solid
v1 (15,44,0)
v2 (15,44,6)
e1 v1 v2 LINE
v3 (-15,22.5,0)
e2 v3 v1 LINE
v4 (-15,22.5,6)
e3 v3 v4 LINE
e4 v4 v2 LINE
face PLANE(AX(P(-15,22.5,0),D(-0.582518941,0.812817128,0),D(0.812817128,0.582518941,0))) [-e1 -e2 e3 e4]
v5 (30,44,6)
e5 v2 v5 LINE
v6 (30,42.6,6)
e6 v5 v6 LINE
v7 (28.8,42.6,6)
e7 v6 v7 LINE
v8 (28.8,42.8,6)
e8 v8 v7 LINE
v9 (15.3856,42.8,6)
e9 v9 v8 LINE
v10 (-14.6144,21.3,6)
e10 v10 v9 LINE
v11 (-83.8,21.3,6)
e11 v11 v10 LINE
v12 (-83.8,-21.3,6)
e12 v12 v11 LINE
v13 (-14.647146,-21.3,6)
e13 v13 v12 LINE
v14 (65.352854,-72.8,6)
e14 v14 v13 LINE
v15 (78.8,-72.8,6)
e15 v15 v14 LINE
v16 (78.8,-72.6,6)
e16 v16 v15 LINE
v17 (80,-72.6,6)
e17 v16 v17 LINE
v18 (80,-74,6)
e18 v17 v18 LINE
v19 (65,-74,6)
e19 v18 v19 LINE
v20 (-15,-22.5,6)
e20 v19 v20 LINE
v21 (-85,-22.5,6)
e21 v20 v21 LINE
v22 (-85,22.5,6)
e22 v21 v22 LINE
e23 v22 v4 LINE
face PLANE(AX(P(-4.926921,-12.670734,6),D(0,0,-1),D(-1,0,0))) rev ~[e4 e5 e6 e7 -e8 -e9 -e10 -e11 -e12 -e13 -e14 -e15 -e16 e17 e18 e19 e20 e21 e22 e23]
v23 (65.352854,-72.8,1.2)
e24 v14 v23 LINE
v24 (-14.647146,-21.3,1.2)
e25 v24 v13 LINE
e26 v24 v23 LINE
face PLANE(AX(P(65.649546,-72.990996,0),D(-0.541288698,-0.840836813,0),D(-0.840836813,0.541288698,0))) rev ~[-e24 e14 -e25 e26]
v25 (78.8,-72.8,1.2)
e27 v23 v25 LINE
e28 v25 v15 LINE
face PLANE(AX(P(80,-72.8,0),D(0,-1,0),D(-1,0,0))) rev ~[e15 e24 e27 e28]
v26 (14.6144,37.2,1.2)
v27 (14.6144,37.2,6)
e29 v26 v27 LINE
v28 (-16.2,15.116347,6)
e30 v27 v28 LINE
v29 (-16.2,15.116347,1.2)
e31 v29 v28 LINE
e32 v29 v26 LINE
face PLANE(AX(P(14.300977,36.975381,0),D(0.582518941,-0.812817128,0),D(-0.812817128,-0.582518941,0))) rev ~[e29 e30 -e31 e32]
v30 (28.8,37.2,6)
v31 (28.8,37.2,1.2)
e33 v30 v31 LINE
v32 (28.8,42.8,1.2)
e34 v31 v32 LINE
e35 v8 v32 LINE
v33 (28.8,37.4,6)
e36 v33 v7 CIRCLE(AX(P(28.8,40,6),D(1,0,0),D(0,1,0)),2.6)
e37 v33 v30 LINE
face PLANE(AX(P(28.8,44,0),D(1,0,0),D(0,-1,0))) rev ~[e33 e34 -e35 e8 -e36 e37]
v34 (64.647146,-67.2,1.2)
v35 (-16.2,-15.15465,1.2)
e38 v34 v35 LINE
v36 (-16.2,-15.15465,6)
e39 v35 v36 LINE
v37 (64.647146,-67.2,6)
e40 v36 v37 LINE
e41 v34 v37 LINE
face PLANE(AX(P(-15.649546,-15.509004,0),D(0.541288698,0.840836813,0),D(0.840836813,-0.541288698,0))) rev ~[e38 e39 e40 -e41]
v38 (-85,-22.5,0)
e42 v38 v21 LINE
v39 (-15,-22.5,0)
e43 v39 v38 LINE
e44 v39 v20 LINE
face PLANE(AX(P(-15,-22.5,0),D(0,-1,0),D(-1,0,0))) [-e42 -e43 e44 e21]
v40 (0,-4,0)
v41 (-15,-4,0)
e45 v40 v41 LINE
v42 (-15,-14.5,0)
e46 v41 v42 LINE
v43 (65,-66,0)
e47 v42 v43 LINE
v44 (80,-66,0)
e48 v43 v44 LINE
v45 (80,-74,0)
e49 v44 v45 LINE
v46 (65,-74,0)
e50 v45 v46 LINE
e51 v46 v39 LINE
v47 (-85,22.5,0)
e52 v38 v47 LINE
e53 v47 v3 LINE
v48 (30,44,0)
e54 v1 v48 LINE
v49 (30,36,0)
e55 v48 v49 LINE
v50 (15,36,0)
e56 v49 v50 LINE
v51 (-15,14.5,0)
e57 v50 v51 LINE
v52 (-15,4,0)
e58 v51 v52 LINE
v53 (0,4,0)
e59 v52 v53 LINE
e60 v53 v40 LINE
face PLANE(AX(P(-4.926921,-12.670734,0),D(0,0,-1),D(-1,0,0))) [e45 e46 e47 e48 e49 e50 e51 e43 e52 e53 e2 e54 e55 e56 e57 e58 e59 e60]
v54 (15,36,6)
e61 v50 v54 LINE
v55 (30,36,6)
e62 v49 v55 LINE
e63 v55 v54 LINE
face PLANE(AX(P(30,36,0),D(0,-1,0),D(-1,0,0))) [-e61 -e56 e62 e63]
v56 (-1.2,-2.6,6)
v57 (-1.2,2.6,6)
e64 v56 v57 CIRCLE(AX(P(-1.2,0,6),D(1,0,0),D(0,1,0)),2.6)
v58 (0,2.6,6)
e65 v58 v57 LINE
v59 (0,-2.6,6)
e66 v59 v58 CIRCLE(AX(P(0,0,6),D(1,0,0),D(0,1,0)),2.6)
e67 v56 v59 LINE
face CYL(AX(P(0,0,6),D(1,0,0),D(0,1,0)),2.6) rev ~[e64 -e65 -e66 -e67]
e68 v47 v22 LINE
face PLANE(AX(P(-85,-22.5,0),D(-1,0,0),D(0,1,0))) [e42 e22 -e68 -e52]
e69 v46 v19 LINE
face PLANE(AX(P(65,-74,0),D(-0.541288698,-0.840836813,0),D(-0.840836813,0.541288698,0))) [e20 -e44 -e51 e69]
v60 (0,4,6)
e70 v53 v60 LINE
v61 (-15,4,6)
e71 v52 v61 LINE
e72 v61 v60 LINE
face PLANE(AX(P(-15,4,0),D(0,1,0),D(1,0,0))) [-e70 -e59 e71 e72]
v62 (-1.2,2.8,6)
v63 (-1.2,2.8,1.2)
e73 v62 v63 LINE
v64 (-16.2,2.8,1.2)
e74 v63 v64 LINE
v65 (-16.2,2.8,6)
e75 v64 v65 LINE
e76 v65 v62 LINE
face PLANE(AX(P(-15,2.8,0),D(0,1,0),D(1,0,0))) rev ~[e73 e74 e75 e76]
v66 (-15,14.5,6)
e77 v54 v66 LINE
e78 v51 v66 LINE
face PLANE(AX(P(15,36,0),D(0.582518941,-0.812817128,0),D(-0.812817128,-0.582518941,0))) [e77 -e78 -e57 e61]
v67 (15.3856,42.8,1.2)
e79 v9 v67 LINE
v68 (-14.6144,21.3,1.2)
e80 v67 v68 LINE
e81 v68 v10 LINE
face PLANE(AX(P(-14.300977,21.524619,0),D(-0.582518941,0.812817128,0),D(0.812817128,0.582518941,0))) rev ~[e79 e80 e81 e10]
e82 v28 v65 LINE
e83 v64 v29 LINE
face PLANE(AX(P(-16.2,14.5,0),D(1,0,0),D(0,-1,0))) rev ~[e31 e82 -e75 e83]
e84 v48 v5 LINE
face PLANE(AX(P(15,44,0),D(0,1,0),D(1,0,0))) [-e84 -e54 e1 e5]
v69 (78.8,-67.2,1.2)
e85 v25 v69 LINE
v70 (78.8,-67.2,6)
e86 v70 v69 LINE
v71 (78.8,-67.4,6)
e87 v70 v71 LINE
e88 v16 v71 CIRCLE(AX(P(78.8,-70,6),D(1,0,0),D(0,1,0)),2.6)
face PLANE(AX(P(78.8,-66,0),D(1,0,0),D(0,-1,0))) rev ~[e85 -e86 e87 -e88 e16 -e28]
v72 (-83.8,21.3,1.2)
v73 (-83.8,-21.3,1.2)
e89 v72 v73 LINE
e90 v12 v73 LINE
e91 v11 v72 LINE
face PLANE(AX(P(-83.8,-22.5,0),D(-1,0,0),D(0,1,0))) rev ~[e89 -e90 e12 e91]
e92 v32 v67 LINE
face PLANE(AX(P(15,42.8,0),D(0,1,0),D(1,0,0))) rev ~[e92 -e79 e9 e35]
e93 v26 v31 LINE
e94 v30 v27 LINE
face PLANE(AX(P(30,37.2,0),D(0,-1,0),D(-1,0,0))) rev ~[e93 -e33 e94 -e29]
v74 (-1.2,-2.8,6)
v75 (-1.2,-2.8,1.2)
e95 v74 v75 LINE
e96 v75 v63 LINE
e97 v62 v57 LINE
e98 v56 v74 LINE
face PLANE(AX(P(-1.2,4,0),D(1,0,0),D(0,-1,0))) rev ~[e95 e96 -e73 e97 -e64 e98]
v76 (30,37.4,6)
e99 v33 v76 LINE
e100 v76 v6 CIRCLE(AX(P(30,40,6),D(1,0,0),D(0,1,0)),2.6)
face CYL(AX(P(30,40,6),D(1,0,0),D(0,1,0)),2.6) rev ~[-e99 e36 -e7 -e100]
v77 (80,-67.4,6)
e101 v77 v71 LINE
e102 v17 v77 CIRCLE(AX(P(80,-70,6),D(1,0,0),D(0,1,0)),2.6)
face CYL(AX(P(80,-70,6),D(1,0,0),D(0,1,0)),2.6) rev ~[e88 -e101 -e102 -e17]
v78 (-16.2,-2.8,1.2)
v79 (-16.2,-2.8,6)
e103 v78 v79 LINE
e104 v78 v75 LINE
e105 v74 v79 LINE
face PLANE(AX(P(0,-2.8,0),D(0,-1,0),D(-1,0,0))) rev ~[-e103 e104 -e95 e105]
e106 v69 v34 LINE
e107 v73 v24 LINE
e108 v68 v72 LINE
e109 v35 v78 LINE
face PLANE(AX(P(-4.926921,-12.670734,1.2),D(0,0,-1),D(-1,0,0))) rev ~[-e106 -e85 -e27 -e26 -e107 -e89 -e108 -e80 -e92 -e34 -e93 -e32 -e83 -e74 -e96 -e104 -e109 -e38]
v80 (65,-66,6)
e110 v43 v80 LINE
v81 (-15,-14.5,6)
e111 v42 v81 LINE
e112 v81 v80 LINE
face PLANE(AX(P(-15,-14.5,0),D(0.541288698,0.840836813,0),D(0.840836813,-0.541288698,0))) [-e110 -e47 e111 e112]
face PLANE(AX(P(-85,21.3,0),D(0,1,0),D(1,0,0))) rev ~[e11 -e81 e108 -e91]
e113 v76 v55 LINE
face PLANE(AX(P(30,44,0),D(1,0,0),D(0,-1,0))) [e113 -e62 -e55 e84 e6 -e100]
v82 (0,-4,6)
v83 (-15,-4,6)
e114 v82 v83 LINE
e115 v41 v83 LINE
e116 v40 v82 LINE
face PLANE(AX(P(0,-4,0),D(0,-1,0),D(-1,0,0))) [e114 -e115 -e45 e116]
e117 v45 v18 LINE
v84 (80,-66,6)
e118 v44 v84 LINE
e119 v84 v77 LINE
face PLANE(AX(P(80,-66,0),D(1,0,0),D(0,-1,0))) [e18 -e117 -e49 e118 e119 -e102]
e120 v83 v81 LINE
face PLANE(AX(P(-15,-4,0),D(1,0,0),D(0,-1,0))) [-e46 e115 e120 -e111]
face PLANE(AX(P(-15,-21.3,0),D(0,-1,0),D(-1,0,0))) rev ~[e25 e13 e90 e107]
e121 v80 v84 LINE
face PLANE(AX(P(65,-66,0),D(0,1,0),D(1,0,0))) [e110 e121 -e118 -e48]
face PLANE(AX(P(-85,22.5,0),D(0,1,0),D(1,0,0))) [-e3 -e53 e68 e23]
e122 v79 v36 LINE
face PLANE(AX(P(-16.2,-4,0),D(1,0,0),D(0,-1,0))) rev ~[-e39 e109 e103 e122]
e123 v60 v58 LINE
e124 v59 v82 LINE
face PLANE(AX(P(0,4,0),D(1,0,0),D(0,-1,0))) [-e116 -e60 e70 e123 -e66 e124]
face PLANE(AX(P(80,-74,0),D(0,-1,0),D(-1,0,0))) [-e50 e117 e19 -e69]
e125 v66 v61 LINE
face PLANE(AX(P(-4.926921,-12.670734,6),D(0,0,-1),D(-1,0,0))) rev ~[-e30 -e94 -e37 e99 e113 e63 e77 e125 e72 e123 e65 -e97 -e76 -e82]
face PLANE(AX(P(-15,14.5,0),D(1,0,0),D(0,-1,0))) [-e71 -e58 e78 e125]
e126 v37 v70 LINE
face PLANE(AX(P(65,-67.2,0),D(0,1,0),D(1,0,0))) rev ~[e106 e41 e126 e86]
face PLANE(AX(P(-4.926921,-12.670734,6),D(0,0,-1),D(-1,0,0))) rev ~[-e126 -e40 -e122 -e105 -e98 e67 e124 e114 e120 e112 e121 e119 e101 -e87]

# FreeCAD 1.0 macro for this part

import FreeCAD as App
import Part
import Sketcher

V = App.Vector


def faces_at(feature, points):
    """Names of the faces that lie closest to the given points."""
    faces = feature.Shape.Faces
    near = lambda p: min(range(len(faces)), key=lambda i: faces[i].distToShape(Part.Vertex(*p))[0])
    return sorted({f"Face{near(p) + 1}" for p in points})

doc = App.newDocument("Part")
body = doc.addObject("PartDesign::Body", "Body")

# Sketch on XY plane
sketch1 = doc.addObject("Sketcher::SketchObject", "Sketch")
body.addObject(sketch1)
sketch1.AttachmentSupport = (doc.XY_Plane, [""])
sketch1.MapMode = "FlatFace"
sketch1.addGeometry([
    Part.LineSegment(V(65, -74, 0), V(80, -74, 0)),  # 0
    Part.LineSegment(V(80, -74, 0), V(80, -66, 0)),  # 1
    Part.LineSegment(V(80, -66, 0), V(65, -66, 0)),  # 2
    Part.LineSegment(V(65, -66, 0), V(-15, -14.5, 0)),  # 3
    Part.LineSegment(V(-15, -14.5, 0), V(-15, -4, 0)),  # 4
    Part.LineSegment(V(-15, -4, 0), V(0, -4, 0)),  # 5
    Part.LineSegment(V(0, -4, 0), V(0, 4, 0)),  # 6
    Part.LineSegment(V(0, 4, 0), V(-15, 4, 0)),  # 7
    Part.LineSegment(V(-15, 4, 0), V(-15, 14.5, 0)),  # 8
    Part.LineSegment(V(-15, 14.5, 0), V(15, 36, 0)),  # 9
    Part.LineSegment(V(15, 36, 0), V(30, 36, 0)),  # 10
    Part.LineSegment(V(30, 36, 0), V(30, 44, 0)),  # 11
    Part.LineSegment(V(30, 44, 0), V(15, 44, 0)),  # 12
    Part.LineSegment(V(15, 44, 0), V(-15, 22.5, 0)),  # 13
    Part.LineSegment(V(-15, 22.5, 0), V(-85, 22.5, 0)),  # 14
    Part.LineSegment(V(-85, 22.5, 0), V(-85, -22.5, 0)),  # 15
    Part.LineSegment(V(-85, -22.5, 0), V(-15, -22.5, 0)),  # 16
    Part.LineSegment(V(-15, -22.5, 0), V(65, -74, 0)),  # 17
], False)
sketch1.addConstraint([
    Sketcher.Constraint("Coincident", 0, 2, 1, 1),
    Sketcher.Constraint("Coincident", 1, 2, 2, 1),
    Sketcher.Constraint("Coincident", 2, 2, 3, 1),
    Sketcher.Constraint("Coincident", 3, 2, 4, 1),
    Sketcher.Constraint("Coincident", 4, 2, 5, 1),
    Sketcher.Constraint("Coincident", 5, 2, 6, 1),
    Sketcher.Constraint("Coincident", 6, 2, 7, 1),
    Sketcher.Constraint("Coincident", 7, 2, 8, 1),
    Sketcher.Constraint("Coincident", 8, 2, 9, 1),
    Sketcher.Constraint("Coincident", 9, 2, 10, 1),
    Sketcher.Constraint("Coincident", 10, 2, 11, 1),
    Sketcher.Constraint("Coincident", 11, 2, 12, 1),
    Sketcher.Constraint("Coincident", 12, 2, 13, 1),
    Sketcher.Constraint("Coincident", 13, 2, 14, 1),
    Sketcher.Constraint("Coincident", 14, 2, 15, 1),
    Sketcher.Constraint("Coincident", 15, 2, 16, 1),
    Sketcher.Constraint("Coincident", 16, 2, 17, 1),
    Sketcher.Constraint("Coincident", 17, 2, 0, 1),
    Sketcher.Constraint("Horizontal", 0),
    Sketcher.Constraint("Vertical", 1),
    Sketcher.Constraint("Horizontal", 2),
    Sketcher.Constraint("Vertical", 4),
    Sketcher.Constraint("Horizontal", 5),
    Sketcher.Constraint("Vertical", 6),
    Sketcher.Constraint("Horizontal", 7),
    Sketcher.Constraint("Vertical", 8),
    Sketcher.Constraint("Horizontal", 10),
    Sketcher.Constraint("Vertical", 11),
    Sketcher.Constraint("Horizontal", 12),
    Sketcher.Constraint("Horizontal", 14),
    Sketcher.Constraint("Vertical", 15),
    Sketcher.Constraint("Horizontal", 16),
    Sketcher.Constraint("Symmetric", 5, 2, 6, 2, -1, 1),
    Sketcher.Constraint("Symmetric", 3, 2, 8, 2, -1),
    Sketcher.Constraint("Symmetric", 13, 2, 16, 2, -1),
    Sketcher.Constraint("Parallel", 9, 13),
    Sketcher.Constraint("Parallel", 3, 17),
    Sketcher.Constraint("Vertical", 9, 2, 12, 2),
    Sketcher.Constraint("Vertical", 8, 2, 13, 2),
    Sketcher.Constraint("Vertical", 2, 2, 17, 2),
    Sketcher.Constraint("Equal", 2, 5),
    Sketcher.Constraint("Equal", 7, 10),
    Sketcher.Constraint("Equal", 1, 6),
    Sketcher.Constraint("DistanceX", 0, 1, 0, 2, 15.0),
    Sketcher.Constraint("DistanceX", 14, 2, 14, 1, 70.0),
    Sketcher.Constraint("DistanceY", 1, 1, 1, 2, 8.0),
    Sketcher.Constraint("DistanceY", 15, 2, 15, 1, 45.0),
    Sketcher.Constraint("DistanceX", -1, 1, 0, 2, 80.0),
    Sketcher.Constraint("DistanceY", 0, 2, -1, 1, 74.0),
    Sketcher.Constraint("DistanceX", -1, 1, 9, 2, 15.0),
    Sketcher.Constraint("DistanceY", -1, 1, 9, 2, 36.0),
])
pad1 = doc.addObject("PartDesign::Pad", "Pad")
body.addObject(pad1)
pad1.Profile = sketch1
pad1.Length = 6
doc.recompute()

thickness = doc.addObject("PartDesign::Thickness", "Thickness")
body.addObject(thickness)
thickness.Base = (pad1, faces_at(pad1, [(-68.5, -15, 6)]))
thickness.Value = 1.2
thickness.Reversed = True
thickness.Join = "Intersection"

# Sketch on YZ plane
sketch2 = doc.addObject("Sketcher::SketchObject", "Sketch001")
body.addObject(sketch2)
sketch2.AttachmentSupport = (doc.YZ_Plane, [""])
sketch2.MapMode = "FlatFace"
sketch2.addGeometry(Part.Circle(V(0, 6, 0), V(0, 0, 1), 2.6), False)
sketch2.addConstraint([
    Sketcher.Constraint("PointOnObject", 0, 3, -2),
    Sketcher.Constraint("Diameter", 0, 5.2),
    Sketcher.Constraint("DistanceY", -1, 1, 0, 3, 6.0),
])
pocket1 = doc.addObject("PartDesign::Pocket", "Pocket")
body.addObject(pocket1)
pocket1.Profile = sketch2
pocket1.Length = 1.2

# Sketch on YZ plane
sketch3 = doc.addObject("Sketcher::SketchObject", "Sketch002")
body.addObject(sketch3)
sketch3.AttachmentSupport = (doc.YZ_Plane, [""])
sketch3.MapMode = "FlatFace"
sketch3.AttachmentOffset = App.Placement(V(0, 0, 30), App.Rotation())
sketch3.addGeometry(Part.Circle(V(40, 6, 0), V(0, 0, 1), 2.6), False)
sketch3.addConstraint([
    Sketcher.Constraint("Diameter", 0, 5.2),
    Sketcher.Constraint("DistanceX", -1, 1, 0, 3, 40.0),
    Sketcher.Constraint("DistanceY", -1, 1, 0, 3, 6.0),
])
pocket2 = doc.addObject("PartDesign::Pocket", "Pocket001")
body.addObject(pocket2)
pocket2.Profile = sketch3
pocket2.Length = 1.2

# Sketch on YZ plane
sketch4 = doc.addObject("Sketcher::SketchObject", "Sketch003")
body.addObject(sketch4)
sketch4.AttachmentSupport = (doc.YZ_Plane, [""])
sketch4.MapMode = "FlatFace"
sketch4.AttachmentOffset = App.Placement(V(0, 0, 80), App.Rotation())
sketch4.addGeometry(Part.Circle(V(-70, 6, 0), V(0, 0, 1), 2.6), False)
sketch4.addConstraint([
    Sketcher.Constraint("Diameter", 0, 5.2),
    Sketcher.Constraint("DistanceX", 0, 3, -1, 1, 70.0),
    Sketcher.Constraint("DistanceY", -1, 1, 0, 3, 6.0),
])
pocket3 = doc.addObject("PartDesign::Pocket", "Pocket002")
body.addObject(pocket3)
pocket3.Profile = sketch4
pocket3.Length = 1.2

doc.recompute()
